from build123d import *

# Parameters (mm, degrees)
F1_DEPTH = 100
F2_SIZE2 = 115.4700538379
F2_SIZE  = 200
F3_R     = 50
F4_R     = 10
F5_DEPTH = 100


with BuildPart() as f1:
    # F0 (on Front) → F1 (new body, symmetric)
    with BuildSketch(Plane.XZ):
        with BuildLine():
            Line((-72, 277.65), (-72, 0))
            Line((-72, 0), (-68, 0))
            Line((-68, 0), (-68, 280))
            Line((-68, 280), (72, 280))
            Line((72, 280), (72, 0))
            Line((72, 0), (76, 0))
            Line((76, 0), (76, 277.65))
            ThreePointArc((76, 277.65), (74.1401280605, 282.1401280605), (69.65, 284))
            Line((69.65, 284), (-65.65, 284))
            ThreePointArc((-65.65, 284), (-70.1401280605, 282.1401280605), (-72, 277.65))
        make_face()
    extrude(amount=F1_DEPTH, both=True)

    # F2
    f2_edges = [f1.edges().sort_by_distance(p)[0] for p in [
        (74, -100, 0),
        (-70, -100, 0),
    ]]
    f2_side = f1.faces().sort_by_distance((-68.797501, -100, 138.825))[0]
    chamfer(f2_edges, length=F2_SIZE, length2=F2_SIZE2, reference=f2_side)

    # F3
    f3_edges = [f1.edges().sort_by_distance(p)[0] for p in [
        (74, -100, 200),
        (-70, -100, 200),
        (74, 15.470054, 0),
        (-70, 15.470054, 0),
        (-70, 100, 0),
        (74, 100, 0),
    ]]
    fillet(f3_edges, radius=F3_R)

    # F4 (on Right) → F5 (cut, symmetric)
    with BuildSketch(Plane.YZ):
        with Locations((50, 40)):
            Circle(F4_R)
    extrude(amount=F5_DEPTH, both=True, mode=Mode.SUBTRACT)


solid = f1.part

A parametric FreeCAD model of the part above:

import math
import FreeCAD as App
import Part
import Sketcher

V = App.Vector


def edges_at(feature, points):
    """Names of the edges that pass closest to the given points."""
    edges = feature.Shape.Edges
    near = lambda p: min(range(len(edges)), key=lambda i: edges[i].distToShape(Part.Vertex(*p))[0])
    return sorted({f"Edge{near(p) + 1}" for p in points})

doc = App.newDocument("Part")
body = doc.addObject("PartDesign::Body", "Body")

sketch1 = doc.addObject("Sketcher::SketchObject", "Sketch")
body.addObject(sketch1)
sketch1.AttachmentSupport = (doc.XZ_Plane, [""])
sketch1.MapMode = "FlatFace"
sketch1.addGeometry([
    Part.LineSegment(V(-72, 277.6, 0), V(-72, 0, 0)),
    Part.LineSegment(V(-72, 0, 0), V(-68, 0, 0)),
    Part.LineSegment(V(-68, 0, 0), V(-68, 280, 0)),
    Part.LineSegment(V(-68, 280, 0), V(72, 280, 0)),
    Part.LineSegment(V(72, 280, 0), V(72, 0, 0)),
    Part.LineSegment(V(72, 0, 0), V(76, 0, 0)),
    Part.LineSegment(V(76, 0, 0), V(76, 277.6, 0)),
    Part.ArcOfCircle(Part.Circle(V(69.7, 277.6, 0), V(0, 0, 1), 6.3), math.radians(0), math.radians(90)),
    Part.LineSegment(V(69.7, 284, 0), V(-65.7, 284, 0)),
    Part.ArcOfCircle(Part.Circle(V(-65.7, 277.6, 0), V(0, 0, 1), 6.3), math.radians(90), math.radians(180)),
], False)
sketch1.addConstraint([
    Sketcher.Constraint("Coincident", 0, 2, 1, 1),
    Sketcher.Constraint("Coincident", 1, 2, 2, 1),
    Sketcher.Constraint("Coincident", 2, 2, 3, 1),
    Sketcher.Constraint("Coincident", 3, 2, 4, 1),
    Sketcher.Constraint("Coincident", 4, 2, 5, 1),
    Sketcher.Constraint("Coincident", 5, 2, 6, 1),
    Sketcher.Constraint("Tangent", 6, 2, 7, 1),
    Sketcher.Constraint("Tangent", 7, 2, 8, 1),
    Sketcher.Constraint("Tangent", 8, 2, 9, 1),
    Sketcher.Constraint("Tangent", 9, 2, 0, 1),
    Sketcher.Constraint("Vertical", 0),
    Sketcher.Constraint("Horizontal", 1),
    Sketcher.Constraint("Vertical", 2),
    Sketcher.Constraint("Horizontal", 3),
    Sketcher.Constraint("Vertical", 4),
    Sketcher.Constraint("Horizontal", 5),
    Sketcher.Constraint("Vertical", 6),
    Sketcher.Constraint("Horizontal", 8),
    Sketcher.Constraint("Equal", 7, 9),
    Sketcher.Constraint("Symmetric", 0, 2, 4, 2, -1, 1),
    Sketcher.Constraint("PointOnObject", 0, 2, -1),
    Sketcher.Constraint("Equal", 1, 5),
    Sketcher.Constraint("DistanceX", 1, 1, 1, 2, 4.0),
    Sketcher.Constraint("DistanceX", 3, 1, 3, 2, 140.0),
    Sketcher.Constraint("DistanceY", 2, 1, 2, 2, 280.0),
    Sketcher.Constraint("Radius", 7, 6.35),
    Sketcher.Constraint("DistanceY", -1, 1, 7, 2, 284.0),
])
pad1 = doc.addObject("PartDesign::Pad", "Pad")
body.addObject(pad1)
pad1.Profile = sketch1
pad1.Length = 200
pad1.Midplane = True
doc.recompute()

chamfer = doc.addObject("PartDesign::Chamfer", "Chamfer")
body.addObject(chamfer)
chamfer.Base = (pad1, edges_at(pad1, [(74, -100, 0), (-70, -100, 0)]))
chamfer.ChamferType = "Two distances"
chamfer.Size = 200
chamfer.Size2 = 115.470054
chamfer.FlipDirection = True
doc.recompute()

fillet = doc.addObject("PartDesign::Fillet", "Fillet")
body.addObject(fillet)
fillet.Base = (chamfer, edges_at(chamfer, [
    (74, -100, 200),
    (-70, -100, 200),
    (74, 15.47, 0),
    (-70, 15.47, 0),
    (-70, 100, 0),
    (74, 100, 0),
]))
fillet.Radius = 50

sketch2 = doc.addObject("Sketcher::SketchObject", "Sketch001")
body.addObject(sketch2)
sketch2.AttachmentSupport = (doc.YZ_Plane, [""])
sketch2.MapMode = "FlatFace"
sketch2.addGeometry(Part.Circle(V(50, 40, 0), V(0, 0, 1), 10), False)
sketch2.addConstraint([
    Sketcher.Constraint("Diameter", 0, 20.0),
    Sketcher.Constraint("DistanceX", -1, 1, 0, 3, 50.0),
    Sketcher.Constraint("DistanceY", -1, 1, 0, 3, 40.0),
])
pocket1 = doc.addObject("PartDesign::Pocket", "Pocket")
body.addObject(pocket1)
pocket1.Profile = sketch2
pocket1.Length = 200
pocket1.Midplane = True

doc.recompute()
